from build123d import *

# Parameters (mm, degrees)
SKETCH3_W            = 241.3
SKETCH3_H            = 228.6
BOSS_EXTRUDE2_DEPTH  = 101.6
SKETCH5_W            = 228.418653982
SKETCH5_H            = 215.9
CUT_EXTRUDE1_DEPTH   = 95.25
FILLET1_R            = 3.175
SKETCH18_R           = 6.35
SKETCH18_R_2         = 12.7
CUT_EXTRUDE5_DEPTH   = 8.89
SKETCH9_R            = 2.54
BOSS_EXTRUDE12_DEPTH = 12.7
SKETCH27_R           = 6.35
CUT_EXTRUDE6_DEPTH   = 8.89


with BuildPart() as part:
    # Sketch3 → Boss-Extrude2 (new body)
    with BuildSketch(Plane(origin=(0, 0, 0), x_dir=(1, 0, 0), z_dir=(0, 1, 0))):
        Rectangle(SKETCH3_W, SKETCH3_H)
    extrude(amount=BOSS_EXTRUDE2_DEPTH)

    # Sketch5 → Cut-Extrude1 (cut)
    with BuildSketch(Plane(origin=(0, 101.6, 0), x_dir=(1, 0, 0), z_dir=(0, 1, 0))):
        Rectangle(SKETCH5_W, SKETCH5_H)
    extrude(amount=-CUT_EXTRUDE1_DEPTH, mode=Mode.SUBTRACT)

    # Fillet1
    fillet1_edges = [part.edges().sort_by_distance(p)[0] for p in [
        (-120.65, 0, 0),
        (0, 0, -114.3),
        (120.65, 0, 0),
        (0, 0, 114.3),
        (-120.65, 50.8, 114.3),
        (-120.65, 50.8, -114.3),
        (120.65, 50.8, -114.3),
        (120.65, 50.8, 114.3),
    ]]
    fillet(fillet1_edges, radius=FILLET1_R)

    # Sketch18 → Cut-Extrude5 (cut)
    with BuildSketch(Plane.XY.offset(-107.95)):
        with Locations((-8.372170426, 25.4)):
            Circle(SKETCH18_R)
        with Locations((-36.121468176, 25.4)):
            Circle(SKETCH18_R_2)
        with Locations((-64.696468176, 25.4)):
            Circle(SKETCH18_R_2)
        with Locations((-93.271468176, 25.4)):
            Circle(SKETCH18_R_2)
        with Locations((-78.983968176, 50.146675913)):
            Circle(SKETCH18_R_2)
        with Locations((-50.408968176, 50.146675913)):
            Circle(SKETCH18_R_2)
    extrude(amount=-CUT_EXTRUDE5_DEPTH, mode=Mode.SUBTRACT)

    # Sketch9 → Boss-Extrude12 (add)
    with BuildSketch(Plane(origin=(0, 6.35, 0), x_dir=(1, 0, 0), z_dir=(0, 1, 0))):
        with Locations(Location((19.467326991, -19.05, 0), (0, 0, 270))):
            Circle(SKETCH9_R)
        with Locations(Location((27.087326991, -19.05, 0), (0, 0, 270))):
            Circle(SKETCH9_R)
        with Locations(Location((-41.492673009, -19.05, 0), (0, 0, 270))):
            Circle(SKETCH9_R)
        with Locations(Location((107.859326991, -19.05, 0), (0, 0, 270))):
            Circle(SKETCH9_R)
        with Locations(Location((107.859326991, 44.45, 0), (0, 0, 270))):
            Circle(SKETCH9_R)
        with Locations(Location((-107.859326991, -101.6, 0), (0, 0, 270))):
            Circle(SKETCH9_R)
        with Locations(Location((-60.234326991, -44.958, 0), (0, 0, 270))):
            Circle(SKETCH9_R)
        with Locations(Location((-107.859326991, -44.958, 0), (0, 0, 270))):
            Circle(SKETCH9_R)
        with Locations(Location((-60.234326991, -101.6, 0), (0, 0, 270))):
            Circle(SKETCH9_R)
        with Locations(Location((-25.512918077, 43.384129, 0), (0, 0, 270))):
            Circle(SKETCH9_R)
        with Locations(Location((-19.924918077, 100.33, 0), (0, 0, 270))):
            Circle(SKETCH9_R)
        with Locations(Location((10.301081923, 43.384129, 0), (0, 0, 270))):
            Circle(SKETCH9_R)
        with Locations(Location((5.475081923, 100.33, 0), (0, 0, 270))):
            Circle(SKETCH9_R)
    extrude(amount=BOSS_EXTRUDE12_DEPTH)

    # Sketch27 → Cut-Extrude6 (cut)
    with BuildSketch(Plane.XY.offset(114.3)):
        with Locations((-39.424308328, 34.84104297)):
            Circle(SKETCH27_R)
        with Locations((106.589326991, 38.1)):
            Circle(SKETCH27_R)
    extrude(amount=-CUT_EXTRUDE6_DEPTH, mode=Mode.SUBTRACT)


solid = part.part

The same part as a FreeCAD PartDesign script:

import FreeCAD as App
import Part
import Sketcher
from FreeCAD import Vector
Q = App.Units.Quantity


def edges_at(feature, points):
    """Names of the edges that pass closest to the given points."""
    edges = feature.Shape.Edges
    near = lambda p: min(range(len(edges)), key=lambda i: edges[i].distToShape(Part.Vertex(*p))[0])
    return sorted({f"Edge{near(p) + 1}" for p in points})

doc = App.newDocument("Part")
body = doc.addObject("PartDesign::Body", "Body")

sketch1 = body.newObject("Sketcher::SketchObject", "Sketch")
sketch1.AttachmentSupport = (doc.getObject("XZ_Plane"), [""])
sketch1.MapMode = "FlatFace"
sketch1.addGeometry(Part.LineSegment(Vector(-120.65, -114.3, 0), Vector(-120.65, 114.3, 0)), False)
sketch1.addGeometry(Part.LineSegment(Vector(-120.65, 114.3, 0), Vector(120.65, 114.3, 0)), False)
sketch1.addGeometry(Part.LineSegment(Vector(120.65, 114.3, 0), Vector(120.65, -114.3, 0)), False)
sketch1.addGeometry(Part.LineSegment(Vector(120.65, -114.3, 0), Vector(-120.65, -114.3, 0)), False)
sketch1.addConstraint(Sketcher.Constraint("Coincident", 0, 2, 1, 1))
sketch1.addConstraint(Sketcher.Constraint("Coincident", 1, 2, 2, 1))
sketch1.addConstraint(Sketcher.Constraint("Coincident", 2, 2, 3, 1))
sketch1.addConstraint(Sketcher.Constraint("Coincident", 3, 2, 0, 1))
sketch1.addConstraint(Sketcher.Constraint("Vertical", 0))
sketch1.addConstraint(Sketcher.Constraint("Horizontal", 1))
sketch1.addConstraint(Sketcher.Constraint("Vertical", 2))
sketch1.addConstraint(Sketcher.Constraint("Horizontal", 3))
sketch1.addConstraint(Sketcher.Constraint("Symmetric", 0, 2, 2, 2, -1, 1))
sketch1.addConstraint(Sketcher.Constraint("DistanceY", 0, 1, 0, 2, Q("9 in")))
sketch1.addConstraint(Sketcher.Constraint("DistanceX", 1, 1, 1, 2, Q("9.5 in")))
pad1 = body.newObject("PartDesign::Pad", "Pad")
pad1.Profile = sketch1
pad1.Length = Q("4 in")
pad1.Reversed = True

sketch2 = body.newObject("Sketcher::SketchObject", "Sketch001")
sketch2.AttachmentSupport = (doc.getObject("XZ_Plane"), [""])
sketch2.MapMode = "FlatFace"
sketch2.AttachmentOffset = App.Placement(Vector(0, 0, -4 * 25.4), App.Rotation())
sketch2.addGeometry(Part.LineSegment(Vector(-114.209327, -107.95, 0), Vector(-114.209327, 107.95, 0)), False)
sketch2.addGeometry(Part.LineSegment(Vector(-114.209327, 107.95, 0), Vector(114.209327, 107.95, 0)), False)
sketch2.addGeometry(Part.LineSegment(Vector(114.209327, 107.95, 0), Vector(114.209327, -107.95, 0)), False)
sketch2.addGeometry(Part.LineSegment(Vector(114.209327, -107.95, 0), Vector(-114.209327, -107.95, 0)), False)
sketch2.addConstraint(Sketcher.Constraint("Coincident", 0, 2, 1, 1))
sketch2.addConstraint(Sketcher.Constraint("Coincident", 1, 2, 2, 1))
sketch2.addConstraint(Sketcher.Constraint("Coincident", 2, 2, 3, 1))
sketch2.addConstraint(Sketcher.Constraint("Coincident", 3, 2, 0, 1))
sketch2.addConstraint(Sketcher.Constraint("Vertical", 0))
sketch2.addConstraint(Sketcher.Constraint("Horizontal", 1))
sketch2.addConstraint(Sketcher.Constraint("Vertical", 2))
sketch2.addConstraint(Sketcher.Constraint("Horizontal", 3))
sketch2.addConstraint(Sketcher.Constraint("Symmetric", 0, 2, 2, 2, -1, 1))
sketch2.addConstraint(Sketcher.Constraint("DistanceY", 0, 1, 0, 2, Q("8.5 in")))
sketch2.addConstraint(Sketcher.Constraint("DistanceX", 1, 1, 1, 2, 228.418654))
pocket1 = body.newObject("PartDesign::Pocket", "Pocket")
pocket1.Profile = sketch2
pocket1.Length = Q("3.75 in")
pocket1.Reversed = True
doc.recompute()

fillet = body.newObject("PartDesign::Fillet", "Fillet")
fillet.Base = (pocket1, edges_at(pocket1, [
    (-120.65, 0, 0),
    (0, 0, -114.3),
    (120.65, 0, 0),
    (0, 0, 114.3),
    (-120.65, 50.8, 114.3),
    (-120.65, 50.8, -114.3),
    (120.65, 50.8, -114.3),
    (120.65, 50.8, 114.3),
]))
fillet.Radius = Q("0.125 in")

sketch3 = body.newObject("Sketcher::SketchObject", "Sketch002")
sketch3.AttachmentSupport = (doc.getObject("XY_Plane"), [""])
sketch3.MapMode = "FlatFace"
sketch3.AttachmentOffset = App.Placement(Vector(0, 0, -4.25 * 25.4), App.Rotation())
sketch3.addGeometry(Part.Circle(Vector(-8.37217, 25.4, 0), Vector(0, 0, 1), 6.35), False)
sketch3.addGeometry(Part.Circle(Vector(-36.121468, 25.4, 0), Vector(0, 0, 1), 12.7), False)
sketch3.addGeometry(Part.Circle(Vector(-64.696468, 25.4, 0), Vector(0, 0, 1), 12.7), False)
sketch3.addGeometry(Part.Circle(Vector(-93.271468, 25.4, 0), Vector(0, 0, 1), 12.7), False)
sketch3.addGeometry(Part.Circle(Vector(-78.983968, 50.146676, 0), Vector(0, 0, 1), 12.7), False)
sketch3.addGeometry(Part.Circle(Vector(-50.408968, 50.146676, 0), Vector(0, 0, 1), 12.7), False)
sketch3.addConstraint(Sketcher.Constraint("Equal", 1, 2))
sketch3.addConstraint(Sketcher.Constraint("Equal", 2, 3))
sketch3.addConstraint(Sketcher.Constraint("Equal", 3, 4))
sketch3.addConstraint(Sketcher.Constraint("Equal", 4, 5))
sketch3.addConstraint(Sketcher.Constraint("Horizontal", 0, 3, 1, 3))
sketch3.addConstraint(Sketcher.Constraint("Horizontal", 1, 3, 2, 3))
sketch3.addConstraint(Sketcher.Constraint("Horizontal", 2, 3, 3, 3))
sketch3.addConstraint(Sketcher.Constraint("Horizontal", 4, 3, 5, 3))
sketch3.addConstraint(Sketcher.Constraint("Diameter", 1, Q("1 in")))
sketch3.addConstraint(Sketcher.Constraint("Diameter", 0, Q("0.5 in")))
sketch3.addConstraint(Sketcher.Constraint("DistanceY", -1, 1, 0, 3, Q("1 in")))
sketch3.addConstraint(Sketcher.Constraint("DistanceX", 3, 3, 1, 3, Q("2.25 in")))
sketch3.addConstraint(Sketcher.Constraint("DistanceX", 2, 3, 1, 3, Q("1.125 in")))
sketch3.addConstraint(Sketcher.Constraint("DistanceX", 3, 3, 4, 3, Q("0.5625 in")))
sketch3.addConstraint(Sketcher.Constraint("DistanceX", 2, 3, 5, 3, Q("0.5625 in")))
sketch3.addConstraint(Sketcher.Constraint("DistanceX", 0, 3, -1, 1, 8.37217))
sketch3.addConstraint(Sketcher.Constraint("DistanceX", 1, 3, -1, 1, 36.121468))
sketch3.addConstraint(Sketcher.Constraint("DistanceY", -1, 1, 4, 3, 50.146676))
pocket2 = body.newObject("PartDesign::Pocket", "Pocket001")
pocket2.Profile = sketch3
pocket2.Length = Q("0.35 in")

sketch4 = body.newObject("Sketcher::SketchObject", "Sketch003")
sketch4.AttachmentSupport = (doc.getObject("XZ_Plane"), [""])
sketch4.MapMode = "FlatFace"
sketch4.AttachmentOffset = App.Placement(Vector(0, 0, -0.25 * 25.4), App.Rotation())
sketch4.addGeometry(Part.Circle(Vector(19.467327, 19.05, 0), Vector(0, 0, 1), 2.54), False)
sketch4.addGeometry(Part.Circle(Vector(27.087327, 19.05, 0), Vector(0, 0, 1), 2.54), False)
sketch4.addGeometry(Part.Circle(Vector(-41.492673, 19.05, 0), Vector(0, 0, 1), 2.54), False)
sketch4.addGeometry(Part.Circle(Vector(107.859327, 19.05, 0), Vector(0, 0, 1), 2.54), False)
sketch4.addGeometry(Part.Circle(Vector(107.859327, -44.45, 0), Vector(0, 0, 1), 2.54), False)
sketch4.addGeometry(Part.Circle(Vector(-107.859327, 101.6, 0), Vector(0, 0, 1), 2.54), False)
sketch4.addGeometry(Part.Circle(Vector(-60.234327, 44.958, 0), Vector(0, 0, 1), 2.54), False)
sketch4.addGeometry(Part.Circle(Vector(-107.859327, 44.958, 0), Vector(0, 0, 1), 2.54), False)
sketch4.addGeometry(Part.Circle(Vector(-60.234327, 101.6, 0), Vector(0, 0, 1), 2.54), False)
sketch4.addGeometry(Part.Circle(Vector(-25.512918, -43.384129, 0), Vector(0, 0, 1), 2.54), False)
sketch4.addGeometry(Part.Circle(Vector(-19.924918, -100.33, 0), Vector(0, 0, 1), 2.54), False)
sketch4.addGeometry(Part.Circle(Vector(10.301082, -43.384129, 0), Vector(0, 0, 1), 2.54), False)
sketch4.addGeometry(Part.Circle(Vector(5.475082, -100.33, 0), Vector(0, 0, 1), 2.54), False)
sketch4.addConstraint(Sketcher.Constraint("Equal", 0, 1))
sketch4.addConstraint(Sketcher.Constraint("Equal", 1, 2))
sketch4.addConstraint(Sketcher.Constraint("Equal", 2, 3))
sketch4.addConstraint(Sketcher.Constraint("Equal", 3, 4))
sketch4.addConstraint(Sketcher.Constraint("Equal", 4, 5))
sketch4.addConstraint(Sketcher.Constraint("Equal", 5, 6))
sketch4.addConstraint(Sketcher.Constraint("Equal", 6, 7))
sketch4.addConstraint(Sketcher.Constraint("Equal", 7, 8))
sketch4.addConstraint(Sketcher.Constraint("Equal", 8, 9))
sketch4.addConstraint(Sketcher.Constraint("Equal", 9, 10))
sketch4.addConstraint(Sketcher.Constraint("Equal", 10, 11))
sketch4.addConstraint(Sketcher.Constraint("Equal", 11, 12))
sketch4.addConstraint(Sketcher.Constraint("Horizontal", 0, 3, 1, 3))
sketch4.addConstraint(Sketcher.Constraint("Horizontal", 1, 3, 2, 3))
sketch4.addConstraint(Sketcher.Constraint("Horizontal", 2, 3, 3, 3))
sketch4.addConstraint(Sketcher.Constraint("Horizontal", 6, 3, 7, 3))
sketch4.addConstraint(Sketcher.Constraint("Horizontal", 5, 3, 8, 3))
sketch4.addConstraint(Sketcher.Constraint("Horizontal", 9, 3, 11, 3))
sketch4.addConstraint(Sketcher.Constraint("Horizontal", 10, 3, 12, 3))
sketch4.addConstraint(Sketcher.Constraint("Vertical", 3, 3, 4, 3))
sketch4.addConstraint(Sketcher.Constraint("Vertical", 5, 3, 7, 3))
sketch4.addConstraint(Sketcher.Constraint("Vertical", 6, 3, 8, 3))
sketch4.addConstraint(Sketcher.Constraint("Diameter", 0, Q("0.2 in")))
sketch4.addConstraint(Sketcher.Constraint("DistanceY", -1, 1, 5, 3, Q("4 in")))
sketch4.addConstraint(Sketcher.Constraint("DistanceX", 10, 3, 12, 3, Q("1 in")))
sketch4.addConstraint(Sketcher.Constraint("DistanceX", 0, 3, 1, 3, Q("0.3 in")))
sketch4.addConstraint(Sketcher.Constraint("DistanceX", 2, 3, 0, 3, Q("2.4 in")))
sketch4.addConstraint(Sketcher.Constraint("DistanceY", 4, 3, 3, 3, Q("2.5 in")))
sketch4.addConstraint(Sketcher.Constraint("DistanceY", 10, 3, 2, 3, Q("4.7 in")))
sketch4.addConstraint(Sketcher.Constraint("DistanceY", -1, 1, 0, 3, Q("0.75 in")))
sketch4.addConstraint(Sketcher.Constraint("DistanceY", -1, 1, 6, 3, Q("1.77 in")))
sketch4.addConstraint(Sketcher.Constraint("DistanceX", 1, 3, 3, 3, Q("3.18 in")))
sketch4.addConstraint(Sketcher.Constraint("DistanceX", 9, 3, 10, 3, Q("0.22 in")))
sketch4.addConstraint(Sketcher.Constraint("DistanceX", 9, 3, 11, 3, Q("1.41 in")))
sketch4.addConstraint(Sketcher.Constraint("DistanceX", 5, 3, 6, 3, Q("1.875 in")))
sketch4.addConstraint(Sketcher.Constraint("DistanceX", 9, 3, -1, 1, 25.512918))
sketch4.addConstraint(Sketcher.Constraint("DistanceY", 9, 3, -1, 1, 43.384129))
sketch4.addConstraint(Sketcher.Constraint("DistanceX", 6, 3, 9, 3, 34.721409))
sketch4.addConstraint(Sketcher.Constraint("DistanceX", -1, 1, 0, 3, 19.467327))
pad2 = body.newObject("PartDesign::Pad", "Pad001")
pad2.Profile = sketch4
pad2.Length = Q("0.5 in")
pad2.Reversed = True

sketch5 = body.newObject("Sketcher::SketchObject", "Sketch004")
sketch5.AttachmentSupport = (doc.getObject("XY_Plane"), [""])
sketch5.MapMode = "FlatFace"
sketch5.AttachmentOffset = App.Placement(Vector(0, 0, 4.5 * 25.4), App.Rotation())
sketch5.addGeometry(Part.Circle(Vector(-39.424308, 34.841043, 0), Vector(0, 0, 1), 6.35), False)
sketch5.addGeometry(Part.Circle(Vector(106.589327, 38.1, 0), Vector(0, 0, 1), 6.35), False)
sketch5.addConstraint(Sketcher.Constraint("Equal", 0, 1))
sketch5.addConstraint(Sketcher.Constraint("Diameter", 0, Q("0.5 in")))
sketch5.addConstraint(Sketcher.Constraint("DistanceY", -1, 1, 1, 3, Q("1.5 in")))
sketch5.addConstraint(Sketcher.Constraint("DistanceX", 0, 3, -1, 1, 39.424308))
sketch5.addConstraint(Sketcher.Constraint("DistanceY", -1, 1, 0, 3, 34.841043))
sketch5.addConstraint(Sketcher.Constraint("DistanceX", -1, 1, 1, 3, 106.589327))
pocket3 = body.newObject("PartDesign::Pocket", "Pocket002")
pocket3.Profile = sketch5
pocket3.Length = Q("0.35 in")

doc.recompute()
